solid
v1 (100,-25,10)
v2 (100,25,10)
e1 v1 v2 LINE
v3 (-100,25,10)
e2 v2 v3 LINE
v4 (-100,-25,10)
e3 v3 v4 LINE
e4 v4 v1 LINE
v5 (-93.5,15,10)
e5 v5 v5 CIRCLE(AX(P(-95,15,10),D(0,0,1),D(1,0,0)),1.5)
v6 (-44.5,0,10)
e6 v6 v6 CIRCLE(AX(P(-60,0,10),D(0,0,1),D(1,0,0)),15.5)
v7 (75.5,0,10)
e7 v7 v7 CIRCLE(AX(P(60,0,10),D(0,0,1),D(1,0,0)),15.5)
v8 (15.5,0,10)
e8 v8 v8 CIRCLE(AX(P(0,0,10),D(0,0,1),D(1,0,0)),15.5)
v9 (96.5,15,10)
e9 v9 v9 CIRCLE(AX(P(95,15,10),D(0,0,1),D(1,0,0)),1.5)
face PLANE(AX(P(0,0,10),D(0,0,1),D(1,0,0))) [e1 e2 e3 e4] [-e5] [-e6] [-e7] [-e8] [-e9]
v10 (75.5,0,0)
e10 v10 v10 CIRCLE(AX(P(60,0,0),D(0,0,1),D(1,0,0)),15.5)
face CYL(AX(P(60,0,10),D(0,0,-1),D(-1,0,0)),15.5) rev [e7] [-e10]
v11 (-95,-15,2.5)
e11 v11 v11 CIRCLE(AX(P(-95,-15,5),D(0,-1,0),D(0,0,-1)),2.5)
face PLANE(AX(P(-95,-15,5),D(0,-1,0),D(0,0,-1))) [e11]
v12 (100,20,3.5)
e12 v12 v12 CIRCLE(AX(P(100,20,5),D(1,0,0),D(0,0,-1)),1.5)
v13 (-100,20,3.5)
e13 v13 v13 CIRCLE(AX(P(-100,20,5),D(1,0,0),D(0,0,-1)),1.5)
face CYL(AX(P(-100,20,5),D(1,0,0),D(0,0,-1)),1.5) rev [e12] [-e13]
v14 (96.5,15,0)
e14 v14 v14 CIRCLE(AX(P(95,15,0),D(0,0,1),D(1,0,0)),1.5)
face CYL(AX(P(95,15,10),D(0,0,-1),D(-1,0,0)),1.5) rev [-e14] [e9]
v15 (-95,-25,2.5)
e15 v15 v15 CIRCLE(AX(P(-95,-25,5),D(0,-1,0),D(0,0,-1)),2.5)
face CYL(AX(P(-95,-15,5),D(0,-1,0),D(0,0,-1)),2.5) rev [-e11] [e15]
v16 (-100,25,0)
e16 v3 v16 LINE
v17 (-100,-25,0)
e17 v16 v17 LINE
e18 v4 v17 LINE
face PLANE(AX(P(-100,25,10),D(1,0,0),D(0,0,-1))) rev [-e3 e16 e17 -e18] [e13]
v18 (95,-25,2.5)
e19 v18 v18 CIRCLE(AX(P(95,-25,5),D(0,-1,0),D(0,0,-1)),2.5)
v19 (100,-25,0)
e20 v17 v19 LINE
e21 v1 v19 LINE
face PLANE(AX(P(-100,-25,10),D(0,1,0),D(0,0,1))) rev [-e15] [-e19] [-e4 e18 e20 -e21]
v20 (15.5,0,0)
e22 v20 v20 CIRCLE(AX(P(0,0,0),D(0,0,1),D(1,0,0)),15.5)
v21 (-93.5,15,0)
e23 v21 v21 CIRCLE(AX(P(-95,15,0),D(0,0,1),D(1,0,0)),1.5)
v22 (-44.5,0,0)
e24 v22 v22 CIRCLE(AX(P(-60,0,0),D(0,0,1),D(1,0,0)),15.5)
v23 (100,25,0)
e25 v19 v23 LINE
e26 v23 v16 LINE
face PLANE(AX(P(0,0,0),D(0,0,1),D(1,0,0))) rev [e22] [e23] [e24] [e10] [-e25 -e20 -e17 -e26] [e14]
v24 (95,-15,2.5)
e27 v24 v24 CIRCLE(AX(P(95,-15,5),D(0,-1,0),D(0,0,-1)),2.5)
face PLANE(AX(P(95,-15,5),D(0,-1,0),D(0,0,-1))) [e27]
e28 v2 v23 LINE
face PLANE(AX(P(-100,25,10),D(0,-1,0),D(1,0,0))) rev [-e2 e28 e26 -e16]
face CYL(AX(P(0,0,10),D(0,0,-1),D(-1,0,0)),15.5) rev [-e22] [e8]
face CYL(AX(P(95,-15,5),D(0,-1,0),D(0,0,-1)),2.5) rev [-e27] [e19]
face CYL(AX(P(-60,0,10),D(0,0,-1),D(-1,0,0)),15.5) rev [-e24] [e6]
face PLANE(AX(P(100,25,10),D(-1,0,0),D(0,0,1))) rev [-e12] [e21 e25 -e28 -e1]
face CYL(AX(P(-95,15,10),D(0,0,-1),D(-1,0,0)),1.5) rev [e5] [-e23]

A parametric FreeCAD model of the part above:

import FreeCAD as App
import Part
import Sketcher


def add_polygon(sketch, points):
    """Adds a closed chain of lines whose ends are joined by coincident constraints."""
    first, n = sketch.GeometryCount, len(points)
    for a, b in zip(points, points[1:] + points[:1]):
        sketch.addGeometry(Part.LineSegment(App.Vector(*a, 0), App.Vector(*b, 0)), False)
    for i in range(n):
        sketch.addConstraint(Sketcher.Constraint("Coincident", first + i, 2, first + (i + 1) % n, 1))

doc = App.newDocument("Part")
body = doc.addObject("PartDesign::Body", "Body")

sketch1 = body.newObject("Sketcher::SketchObject", "Sketch")
sketch1.AttachmentSupport = (doc.getObject("XY_Plane"), [""])
sketch1.MapMode = "FlatFace"
add_polygon(sketch1, [(-100, 25), (-100, -25), (100, -25), (100, 25)])
sketch1.addGeometry(Part.Circle(App.Vector(-60, 0, 0), App.Vector(0, 0, 1), 15.5), False)
sketch1.addGeometry(Part.Circle(App.Vector(0, 0, 0), App.Vector(0, 0, 1), 15.5), False)
sketch1.addGeometry(Part.Circle(App.Vector(60, 0, 0), App.Vector(0, 0, 1), 15.5), False)
sketch1.addGeometry(Part.Circle(App.Vector(-95, 15, 0), App.Vector(0, 0, 1), 1.5), False)
sketch1.addGeometry(Part.Circle(App.Vector(95, 15, 0), App.Vector(0, 0, 1), 1.5), False)
sketch1.addConstraint(Sketcher.Constraint("Vertical", 0))
sketch1.addConstraint(Sketcher.Constraint("Horizontal", 1))
sketch1.addConstraint(Sketcher.Constraint("Vertical", 2))
sketch1.addConstraint(Sketcher.Constraint("Horizontal", 3))
sketch1.addConstraint(Sketcher.Constraint("Coincident", 5, 3, -1, 1))
sketch1.addConstraint(Sketcher.Constraint("Equal", 4, 5))
sketch1.addConstraint(Sketcher.Constraint("Equal", 5, 6))
sketch1.addConstraint(Sketcher.Constraint("Equal", 7, 8))
sketch1.addConstraint(Sketcher.Constraint("Symmetric", 4, 3, 6, 3, -1, 1))
sketch1.addConstraint(Sketcher.Constraint("Symmetric", 0, 2, 2, 2, -1, 1))
sketch1.addConstraint(Sketcher.Constraint("Symmetric", 7, 3, 8, 3, -2))
sketch1.addConstraint(Sketcher.Constraint("PointOnObject", 4, 3, -1))
sketch1.addConstraint(Sketcher.Constraint("Diameter", 4, 31.0))
sketch1.addConstraint(Sketcher.Constraint("Diameter", 7, 3.0))
sketch1.addConstraint(Sketcher.Constraint("DistanceX", 1, 1, 1, 2, 200.0))
sketch1.addConstraint(Sketcher.Constraint("DistanceY", 0, 2, 0, 1, 50.0))
sketch1.addConstraint(Sketcher.Constraint("DistanceX", 4, 3, -1, 1, 60.0))
sketch1.addConstraint(Sketcher.Constraint("DistanceX", 7, 3, -1, 1, 95.0))
sketch1.addConstraint(Sketcher.Constraint("DistanceY", -1, 1, 7, 3, 15.0))
pad1 = body.newObject("PartDesign::Pad", "Pad")
pad1.Profile = sketch1
pad1.Length = 10

sketch2 = body.newObject("Sketcher::SketchObject", "Sketch001")
sketch2.AttachmentSupport = (doc.getObject("XZ_Plane"), [""])
sketch2.MapMode = "FlatFace"
sketch2.AttachmentOffset = App.Placement(App.Vector(0, 0, 25), App.Rotation())
sketch2.addGeometry(Part.Circle(App.Vector(-95, 5, 0), App.Vector(0, 0, 1), 2.5), False)
sketch2.addGeometry(Part.Circle(App.Vector(95, 5, 0), App.Vector(0, 0, 1), 2.5), False)
sketch2.addConstraint(Sketcher.Constraint("Equal", 0, 1))
sketch2.addConstraint(Sketcher.Constraint("Symmetric", 0, 3, 1, 3, -2))
sketch2.addConstraint(Sketcher.Constraint("Diameter", 0, 5.0))
sketch2.addConstraint(Sketcher.Constraint("DistanceX", 0, 3, -1, 1, 95.0))
sketch2.addConstraint(Sketcher.Constraint("DistanceY", -1, 1, 0, 3, 5.0))
pocket1 = body.newObject("PartDesign::Pocket", "Pocket")
pocket1.Profile = sketch2
pocket1.Length = 10

sketch3 = body.newObject("Sketcher::SketchObject", "Sketch002")
sketch3.AttachmentSupport = (doc.getObject("YZ_Plane"), [""])
sketch3.MapMode = "FlatFace"
sketch3.AttachmentOffset = App.Placement(App.Vector(0, 0, 100), App.Rotation())
sketch3.addGeometry(Part.Circle(App.Vector(20, 5, 0), App.Vector(0, 0, 1), 1.5), False)
sketch3.addConstraint(Sketcher.Constraint("Diameter", 0, 3.0))
sketch3.addConstraint(Sketcher.Constraint("DistanceX", -1, 1, 0, 3, 20.0))
sketch3.addConstraint(Sketcher.Constraint("DistanceY", -1, 1, 0, 3, 5.0))
pocket2 = body.newObject("PartDesign::Pocket", "Pocket001")
pocket2.Profile = sketch3
pocket2.Length = 200

doc.recompute()
